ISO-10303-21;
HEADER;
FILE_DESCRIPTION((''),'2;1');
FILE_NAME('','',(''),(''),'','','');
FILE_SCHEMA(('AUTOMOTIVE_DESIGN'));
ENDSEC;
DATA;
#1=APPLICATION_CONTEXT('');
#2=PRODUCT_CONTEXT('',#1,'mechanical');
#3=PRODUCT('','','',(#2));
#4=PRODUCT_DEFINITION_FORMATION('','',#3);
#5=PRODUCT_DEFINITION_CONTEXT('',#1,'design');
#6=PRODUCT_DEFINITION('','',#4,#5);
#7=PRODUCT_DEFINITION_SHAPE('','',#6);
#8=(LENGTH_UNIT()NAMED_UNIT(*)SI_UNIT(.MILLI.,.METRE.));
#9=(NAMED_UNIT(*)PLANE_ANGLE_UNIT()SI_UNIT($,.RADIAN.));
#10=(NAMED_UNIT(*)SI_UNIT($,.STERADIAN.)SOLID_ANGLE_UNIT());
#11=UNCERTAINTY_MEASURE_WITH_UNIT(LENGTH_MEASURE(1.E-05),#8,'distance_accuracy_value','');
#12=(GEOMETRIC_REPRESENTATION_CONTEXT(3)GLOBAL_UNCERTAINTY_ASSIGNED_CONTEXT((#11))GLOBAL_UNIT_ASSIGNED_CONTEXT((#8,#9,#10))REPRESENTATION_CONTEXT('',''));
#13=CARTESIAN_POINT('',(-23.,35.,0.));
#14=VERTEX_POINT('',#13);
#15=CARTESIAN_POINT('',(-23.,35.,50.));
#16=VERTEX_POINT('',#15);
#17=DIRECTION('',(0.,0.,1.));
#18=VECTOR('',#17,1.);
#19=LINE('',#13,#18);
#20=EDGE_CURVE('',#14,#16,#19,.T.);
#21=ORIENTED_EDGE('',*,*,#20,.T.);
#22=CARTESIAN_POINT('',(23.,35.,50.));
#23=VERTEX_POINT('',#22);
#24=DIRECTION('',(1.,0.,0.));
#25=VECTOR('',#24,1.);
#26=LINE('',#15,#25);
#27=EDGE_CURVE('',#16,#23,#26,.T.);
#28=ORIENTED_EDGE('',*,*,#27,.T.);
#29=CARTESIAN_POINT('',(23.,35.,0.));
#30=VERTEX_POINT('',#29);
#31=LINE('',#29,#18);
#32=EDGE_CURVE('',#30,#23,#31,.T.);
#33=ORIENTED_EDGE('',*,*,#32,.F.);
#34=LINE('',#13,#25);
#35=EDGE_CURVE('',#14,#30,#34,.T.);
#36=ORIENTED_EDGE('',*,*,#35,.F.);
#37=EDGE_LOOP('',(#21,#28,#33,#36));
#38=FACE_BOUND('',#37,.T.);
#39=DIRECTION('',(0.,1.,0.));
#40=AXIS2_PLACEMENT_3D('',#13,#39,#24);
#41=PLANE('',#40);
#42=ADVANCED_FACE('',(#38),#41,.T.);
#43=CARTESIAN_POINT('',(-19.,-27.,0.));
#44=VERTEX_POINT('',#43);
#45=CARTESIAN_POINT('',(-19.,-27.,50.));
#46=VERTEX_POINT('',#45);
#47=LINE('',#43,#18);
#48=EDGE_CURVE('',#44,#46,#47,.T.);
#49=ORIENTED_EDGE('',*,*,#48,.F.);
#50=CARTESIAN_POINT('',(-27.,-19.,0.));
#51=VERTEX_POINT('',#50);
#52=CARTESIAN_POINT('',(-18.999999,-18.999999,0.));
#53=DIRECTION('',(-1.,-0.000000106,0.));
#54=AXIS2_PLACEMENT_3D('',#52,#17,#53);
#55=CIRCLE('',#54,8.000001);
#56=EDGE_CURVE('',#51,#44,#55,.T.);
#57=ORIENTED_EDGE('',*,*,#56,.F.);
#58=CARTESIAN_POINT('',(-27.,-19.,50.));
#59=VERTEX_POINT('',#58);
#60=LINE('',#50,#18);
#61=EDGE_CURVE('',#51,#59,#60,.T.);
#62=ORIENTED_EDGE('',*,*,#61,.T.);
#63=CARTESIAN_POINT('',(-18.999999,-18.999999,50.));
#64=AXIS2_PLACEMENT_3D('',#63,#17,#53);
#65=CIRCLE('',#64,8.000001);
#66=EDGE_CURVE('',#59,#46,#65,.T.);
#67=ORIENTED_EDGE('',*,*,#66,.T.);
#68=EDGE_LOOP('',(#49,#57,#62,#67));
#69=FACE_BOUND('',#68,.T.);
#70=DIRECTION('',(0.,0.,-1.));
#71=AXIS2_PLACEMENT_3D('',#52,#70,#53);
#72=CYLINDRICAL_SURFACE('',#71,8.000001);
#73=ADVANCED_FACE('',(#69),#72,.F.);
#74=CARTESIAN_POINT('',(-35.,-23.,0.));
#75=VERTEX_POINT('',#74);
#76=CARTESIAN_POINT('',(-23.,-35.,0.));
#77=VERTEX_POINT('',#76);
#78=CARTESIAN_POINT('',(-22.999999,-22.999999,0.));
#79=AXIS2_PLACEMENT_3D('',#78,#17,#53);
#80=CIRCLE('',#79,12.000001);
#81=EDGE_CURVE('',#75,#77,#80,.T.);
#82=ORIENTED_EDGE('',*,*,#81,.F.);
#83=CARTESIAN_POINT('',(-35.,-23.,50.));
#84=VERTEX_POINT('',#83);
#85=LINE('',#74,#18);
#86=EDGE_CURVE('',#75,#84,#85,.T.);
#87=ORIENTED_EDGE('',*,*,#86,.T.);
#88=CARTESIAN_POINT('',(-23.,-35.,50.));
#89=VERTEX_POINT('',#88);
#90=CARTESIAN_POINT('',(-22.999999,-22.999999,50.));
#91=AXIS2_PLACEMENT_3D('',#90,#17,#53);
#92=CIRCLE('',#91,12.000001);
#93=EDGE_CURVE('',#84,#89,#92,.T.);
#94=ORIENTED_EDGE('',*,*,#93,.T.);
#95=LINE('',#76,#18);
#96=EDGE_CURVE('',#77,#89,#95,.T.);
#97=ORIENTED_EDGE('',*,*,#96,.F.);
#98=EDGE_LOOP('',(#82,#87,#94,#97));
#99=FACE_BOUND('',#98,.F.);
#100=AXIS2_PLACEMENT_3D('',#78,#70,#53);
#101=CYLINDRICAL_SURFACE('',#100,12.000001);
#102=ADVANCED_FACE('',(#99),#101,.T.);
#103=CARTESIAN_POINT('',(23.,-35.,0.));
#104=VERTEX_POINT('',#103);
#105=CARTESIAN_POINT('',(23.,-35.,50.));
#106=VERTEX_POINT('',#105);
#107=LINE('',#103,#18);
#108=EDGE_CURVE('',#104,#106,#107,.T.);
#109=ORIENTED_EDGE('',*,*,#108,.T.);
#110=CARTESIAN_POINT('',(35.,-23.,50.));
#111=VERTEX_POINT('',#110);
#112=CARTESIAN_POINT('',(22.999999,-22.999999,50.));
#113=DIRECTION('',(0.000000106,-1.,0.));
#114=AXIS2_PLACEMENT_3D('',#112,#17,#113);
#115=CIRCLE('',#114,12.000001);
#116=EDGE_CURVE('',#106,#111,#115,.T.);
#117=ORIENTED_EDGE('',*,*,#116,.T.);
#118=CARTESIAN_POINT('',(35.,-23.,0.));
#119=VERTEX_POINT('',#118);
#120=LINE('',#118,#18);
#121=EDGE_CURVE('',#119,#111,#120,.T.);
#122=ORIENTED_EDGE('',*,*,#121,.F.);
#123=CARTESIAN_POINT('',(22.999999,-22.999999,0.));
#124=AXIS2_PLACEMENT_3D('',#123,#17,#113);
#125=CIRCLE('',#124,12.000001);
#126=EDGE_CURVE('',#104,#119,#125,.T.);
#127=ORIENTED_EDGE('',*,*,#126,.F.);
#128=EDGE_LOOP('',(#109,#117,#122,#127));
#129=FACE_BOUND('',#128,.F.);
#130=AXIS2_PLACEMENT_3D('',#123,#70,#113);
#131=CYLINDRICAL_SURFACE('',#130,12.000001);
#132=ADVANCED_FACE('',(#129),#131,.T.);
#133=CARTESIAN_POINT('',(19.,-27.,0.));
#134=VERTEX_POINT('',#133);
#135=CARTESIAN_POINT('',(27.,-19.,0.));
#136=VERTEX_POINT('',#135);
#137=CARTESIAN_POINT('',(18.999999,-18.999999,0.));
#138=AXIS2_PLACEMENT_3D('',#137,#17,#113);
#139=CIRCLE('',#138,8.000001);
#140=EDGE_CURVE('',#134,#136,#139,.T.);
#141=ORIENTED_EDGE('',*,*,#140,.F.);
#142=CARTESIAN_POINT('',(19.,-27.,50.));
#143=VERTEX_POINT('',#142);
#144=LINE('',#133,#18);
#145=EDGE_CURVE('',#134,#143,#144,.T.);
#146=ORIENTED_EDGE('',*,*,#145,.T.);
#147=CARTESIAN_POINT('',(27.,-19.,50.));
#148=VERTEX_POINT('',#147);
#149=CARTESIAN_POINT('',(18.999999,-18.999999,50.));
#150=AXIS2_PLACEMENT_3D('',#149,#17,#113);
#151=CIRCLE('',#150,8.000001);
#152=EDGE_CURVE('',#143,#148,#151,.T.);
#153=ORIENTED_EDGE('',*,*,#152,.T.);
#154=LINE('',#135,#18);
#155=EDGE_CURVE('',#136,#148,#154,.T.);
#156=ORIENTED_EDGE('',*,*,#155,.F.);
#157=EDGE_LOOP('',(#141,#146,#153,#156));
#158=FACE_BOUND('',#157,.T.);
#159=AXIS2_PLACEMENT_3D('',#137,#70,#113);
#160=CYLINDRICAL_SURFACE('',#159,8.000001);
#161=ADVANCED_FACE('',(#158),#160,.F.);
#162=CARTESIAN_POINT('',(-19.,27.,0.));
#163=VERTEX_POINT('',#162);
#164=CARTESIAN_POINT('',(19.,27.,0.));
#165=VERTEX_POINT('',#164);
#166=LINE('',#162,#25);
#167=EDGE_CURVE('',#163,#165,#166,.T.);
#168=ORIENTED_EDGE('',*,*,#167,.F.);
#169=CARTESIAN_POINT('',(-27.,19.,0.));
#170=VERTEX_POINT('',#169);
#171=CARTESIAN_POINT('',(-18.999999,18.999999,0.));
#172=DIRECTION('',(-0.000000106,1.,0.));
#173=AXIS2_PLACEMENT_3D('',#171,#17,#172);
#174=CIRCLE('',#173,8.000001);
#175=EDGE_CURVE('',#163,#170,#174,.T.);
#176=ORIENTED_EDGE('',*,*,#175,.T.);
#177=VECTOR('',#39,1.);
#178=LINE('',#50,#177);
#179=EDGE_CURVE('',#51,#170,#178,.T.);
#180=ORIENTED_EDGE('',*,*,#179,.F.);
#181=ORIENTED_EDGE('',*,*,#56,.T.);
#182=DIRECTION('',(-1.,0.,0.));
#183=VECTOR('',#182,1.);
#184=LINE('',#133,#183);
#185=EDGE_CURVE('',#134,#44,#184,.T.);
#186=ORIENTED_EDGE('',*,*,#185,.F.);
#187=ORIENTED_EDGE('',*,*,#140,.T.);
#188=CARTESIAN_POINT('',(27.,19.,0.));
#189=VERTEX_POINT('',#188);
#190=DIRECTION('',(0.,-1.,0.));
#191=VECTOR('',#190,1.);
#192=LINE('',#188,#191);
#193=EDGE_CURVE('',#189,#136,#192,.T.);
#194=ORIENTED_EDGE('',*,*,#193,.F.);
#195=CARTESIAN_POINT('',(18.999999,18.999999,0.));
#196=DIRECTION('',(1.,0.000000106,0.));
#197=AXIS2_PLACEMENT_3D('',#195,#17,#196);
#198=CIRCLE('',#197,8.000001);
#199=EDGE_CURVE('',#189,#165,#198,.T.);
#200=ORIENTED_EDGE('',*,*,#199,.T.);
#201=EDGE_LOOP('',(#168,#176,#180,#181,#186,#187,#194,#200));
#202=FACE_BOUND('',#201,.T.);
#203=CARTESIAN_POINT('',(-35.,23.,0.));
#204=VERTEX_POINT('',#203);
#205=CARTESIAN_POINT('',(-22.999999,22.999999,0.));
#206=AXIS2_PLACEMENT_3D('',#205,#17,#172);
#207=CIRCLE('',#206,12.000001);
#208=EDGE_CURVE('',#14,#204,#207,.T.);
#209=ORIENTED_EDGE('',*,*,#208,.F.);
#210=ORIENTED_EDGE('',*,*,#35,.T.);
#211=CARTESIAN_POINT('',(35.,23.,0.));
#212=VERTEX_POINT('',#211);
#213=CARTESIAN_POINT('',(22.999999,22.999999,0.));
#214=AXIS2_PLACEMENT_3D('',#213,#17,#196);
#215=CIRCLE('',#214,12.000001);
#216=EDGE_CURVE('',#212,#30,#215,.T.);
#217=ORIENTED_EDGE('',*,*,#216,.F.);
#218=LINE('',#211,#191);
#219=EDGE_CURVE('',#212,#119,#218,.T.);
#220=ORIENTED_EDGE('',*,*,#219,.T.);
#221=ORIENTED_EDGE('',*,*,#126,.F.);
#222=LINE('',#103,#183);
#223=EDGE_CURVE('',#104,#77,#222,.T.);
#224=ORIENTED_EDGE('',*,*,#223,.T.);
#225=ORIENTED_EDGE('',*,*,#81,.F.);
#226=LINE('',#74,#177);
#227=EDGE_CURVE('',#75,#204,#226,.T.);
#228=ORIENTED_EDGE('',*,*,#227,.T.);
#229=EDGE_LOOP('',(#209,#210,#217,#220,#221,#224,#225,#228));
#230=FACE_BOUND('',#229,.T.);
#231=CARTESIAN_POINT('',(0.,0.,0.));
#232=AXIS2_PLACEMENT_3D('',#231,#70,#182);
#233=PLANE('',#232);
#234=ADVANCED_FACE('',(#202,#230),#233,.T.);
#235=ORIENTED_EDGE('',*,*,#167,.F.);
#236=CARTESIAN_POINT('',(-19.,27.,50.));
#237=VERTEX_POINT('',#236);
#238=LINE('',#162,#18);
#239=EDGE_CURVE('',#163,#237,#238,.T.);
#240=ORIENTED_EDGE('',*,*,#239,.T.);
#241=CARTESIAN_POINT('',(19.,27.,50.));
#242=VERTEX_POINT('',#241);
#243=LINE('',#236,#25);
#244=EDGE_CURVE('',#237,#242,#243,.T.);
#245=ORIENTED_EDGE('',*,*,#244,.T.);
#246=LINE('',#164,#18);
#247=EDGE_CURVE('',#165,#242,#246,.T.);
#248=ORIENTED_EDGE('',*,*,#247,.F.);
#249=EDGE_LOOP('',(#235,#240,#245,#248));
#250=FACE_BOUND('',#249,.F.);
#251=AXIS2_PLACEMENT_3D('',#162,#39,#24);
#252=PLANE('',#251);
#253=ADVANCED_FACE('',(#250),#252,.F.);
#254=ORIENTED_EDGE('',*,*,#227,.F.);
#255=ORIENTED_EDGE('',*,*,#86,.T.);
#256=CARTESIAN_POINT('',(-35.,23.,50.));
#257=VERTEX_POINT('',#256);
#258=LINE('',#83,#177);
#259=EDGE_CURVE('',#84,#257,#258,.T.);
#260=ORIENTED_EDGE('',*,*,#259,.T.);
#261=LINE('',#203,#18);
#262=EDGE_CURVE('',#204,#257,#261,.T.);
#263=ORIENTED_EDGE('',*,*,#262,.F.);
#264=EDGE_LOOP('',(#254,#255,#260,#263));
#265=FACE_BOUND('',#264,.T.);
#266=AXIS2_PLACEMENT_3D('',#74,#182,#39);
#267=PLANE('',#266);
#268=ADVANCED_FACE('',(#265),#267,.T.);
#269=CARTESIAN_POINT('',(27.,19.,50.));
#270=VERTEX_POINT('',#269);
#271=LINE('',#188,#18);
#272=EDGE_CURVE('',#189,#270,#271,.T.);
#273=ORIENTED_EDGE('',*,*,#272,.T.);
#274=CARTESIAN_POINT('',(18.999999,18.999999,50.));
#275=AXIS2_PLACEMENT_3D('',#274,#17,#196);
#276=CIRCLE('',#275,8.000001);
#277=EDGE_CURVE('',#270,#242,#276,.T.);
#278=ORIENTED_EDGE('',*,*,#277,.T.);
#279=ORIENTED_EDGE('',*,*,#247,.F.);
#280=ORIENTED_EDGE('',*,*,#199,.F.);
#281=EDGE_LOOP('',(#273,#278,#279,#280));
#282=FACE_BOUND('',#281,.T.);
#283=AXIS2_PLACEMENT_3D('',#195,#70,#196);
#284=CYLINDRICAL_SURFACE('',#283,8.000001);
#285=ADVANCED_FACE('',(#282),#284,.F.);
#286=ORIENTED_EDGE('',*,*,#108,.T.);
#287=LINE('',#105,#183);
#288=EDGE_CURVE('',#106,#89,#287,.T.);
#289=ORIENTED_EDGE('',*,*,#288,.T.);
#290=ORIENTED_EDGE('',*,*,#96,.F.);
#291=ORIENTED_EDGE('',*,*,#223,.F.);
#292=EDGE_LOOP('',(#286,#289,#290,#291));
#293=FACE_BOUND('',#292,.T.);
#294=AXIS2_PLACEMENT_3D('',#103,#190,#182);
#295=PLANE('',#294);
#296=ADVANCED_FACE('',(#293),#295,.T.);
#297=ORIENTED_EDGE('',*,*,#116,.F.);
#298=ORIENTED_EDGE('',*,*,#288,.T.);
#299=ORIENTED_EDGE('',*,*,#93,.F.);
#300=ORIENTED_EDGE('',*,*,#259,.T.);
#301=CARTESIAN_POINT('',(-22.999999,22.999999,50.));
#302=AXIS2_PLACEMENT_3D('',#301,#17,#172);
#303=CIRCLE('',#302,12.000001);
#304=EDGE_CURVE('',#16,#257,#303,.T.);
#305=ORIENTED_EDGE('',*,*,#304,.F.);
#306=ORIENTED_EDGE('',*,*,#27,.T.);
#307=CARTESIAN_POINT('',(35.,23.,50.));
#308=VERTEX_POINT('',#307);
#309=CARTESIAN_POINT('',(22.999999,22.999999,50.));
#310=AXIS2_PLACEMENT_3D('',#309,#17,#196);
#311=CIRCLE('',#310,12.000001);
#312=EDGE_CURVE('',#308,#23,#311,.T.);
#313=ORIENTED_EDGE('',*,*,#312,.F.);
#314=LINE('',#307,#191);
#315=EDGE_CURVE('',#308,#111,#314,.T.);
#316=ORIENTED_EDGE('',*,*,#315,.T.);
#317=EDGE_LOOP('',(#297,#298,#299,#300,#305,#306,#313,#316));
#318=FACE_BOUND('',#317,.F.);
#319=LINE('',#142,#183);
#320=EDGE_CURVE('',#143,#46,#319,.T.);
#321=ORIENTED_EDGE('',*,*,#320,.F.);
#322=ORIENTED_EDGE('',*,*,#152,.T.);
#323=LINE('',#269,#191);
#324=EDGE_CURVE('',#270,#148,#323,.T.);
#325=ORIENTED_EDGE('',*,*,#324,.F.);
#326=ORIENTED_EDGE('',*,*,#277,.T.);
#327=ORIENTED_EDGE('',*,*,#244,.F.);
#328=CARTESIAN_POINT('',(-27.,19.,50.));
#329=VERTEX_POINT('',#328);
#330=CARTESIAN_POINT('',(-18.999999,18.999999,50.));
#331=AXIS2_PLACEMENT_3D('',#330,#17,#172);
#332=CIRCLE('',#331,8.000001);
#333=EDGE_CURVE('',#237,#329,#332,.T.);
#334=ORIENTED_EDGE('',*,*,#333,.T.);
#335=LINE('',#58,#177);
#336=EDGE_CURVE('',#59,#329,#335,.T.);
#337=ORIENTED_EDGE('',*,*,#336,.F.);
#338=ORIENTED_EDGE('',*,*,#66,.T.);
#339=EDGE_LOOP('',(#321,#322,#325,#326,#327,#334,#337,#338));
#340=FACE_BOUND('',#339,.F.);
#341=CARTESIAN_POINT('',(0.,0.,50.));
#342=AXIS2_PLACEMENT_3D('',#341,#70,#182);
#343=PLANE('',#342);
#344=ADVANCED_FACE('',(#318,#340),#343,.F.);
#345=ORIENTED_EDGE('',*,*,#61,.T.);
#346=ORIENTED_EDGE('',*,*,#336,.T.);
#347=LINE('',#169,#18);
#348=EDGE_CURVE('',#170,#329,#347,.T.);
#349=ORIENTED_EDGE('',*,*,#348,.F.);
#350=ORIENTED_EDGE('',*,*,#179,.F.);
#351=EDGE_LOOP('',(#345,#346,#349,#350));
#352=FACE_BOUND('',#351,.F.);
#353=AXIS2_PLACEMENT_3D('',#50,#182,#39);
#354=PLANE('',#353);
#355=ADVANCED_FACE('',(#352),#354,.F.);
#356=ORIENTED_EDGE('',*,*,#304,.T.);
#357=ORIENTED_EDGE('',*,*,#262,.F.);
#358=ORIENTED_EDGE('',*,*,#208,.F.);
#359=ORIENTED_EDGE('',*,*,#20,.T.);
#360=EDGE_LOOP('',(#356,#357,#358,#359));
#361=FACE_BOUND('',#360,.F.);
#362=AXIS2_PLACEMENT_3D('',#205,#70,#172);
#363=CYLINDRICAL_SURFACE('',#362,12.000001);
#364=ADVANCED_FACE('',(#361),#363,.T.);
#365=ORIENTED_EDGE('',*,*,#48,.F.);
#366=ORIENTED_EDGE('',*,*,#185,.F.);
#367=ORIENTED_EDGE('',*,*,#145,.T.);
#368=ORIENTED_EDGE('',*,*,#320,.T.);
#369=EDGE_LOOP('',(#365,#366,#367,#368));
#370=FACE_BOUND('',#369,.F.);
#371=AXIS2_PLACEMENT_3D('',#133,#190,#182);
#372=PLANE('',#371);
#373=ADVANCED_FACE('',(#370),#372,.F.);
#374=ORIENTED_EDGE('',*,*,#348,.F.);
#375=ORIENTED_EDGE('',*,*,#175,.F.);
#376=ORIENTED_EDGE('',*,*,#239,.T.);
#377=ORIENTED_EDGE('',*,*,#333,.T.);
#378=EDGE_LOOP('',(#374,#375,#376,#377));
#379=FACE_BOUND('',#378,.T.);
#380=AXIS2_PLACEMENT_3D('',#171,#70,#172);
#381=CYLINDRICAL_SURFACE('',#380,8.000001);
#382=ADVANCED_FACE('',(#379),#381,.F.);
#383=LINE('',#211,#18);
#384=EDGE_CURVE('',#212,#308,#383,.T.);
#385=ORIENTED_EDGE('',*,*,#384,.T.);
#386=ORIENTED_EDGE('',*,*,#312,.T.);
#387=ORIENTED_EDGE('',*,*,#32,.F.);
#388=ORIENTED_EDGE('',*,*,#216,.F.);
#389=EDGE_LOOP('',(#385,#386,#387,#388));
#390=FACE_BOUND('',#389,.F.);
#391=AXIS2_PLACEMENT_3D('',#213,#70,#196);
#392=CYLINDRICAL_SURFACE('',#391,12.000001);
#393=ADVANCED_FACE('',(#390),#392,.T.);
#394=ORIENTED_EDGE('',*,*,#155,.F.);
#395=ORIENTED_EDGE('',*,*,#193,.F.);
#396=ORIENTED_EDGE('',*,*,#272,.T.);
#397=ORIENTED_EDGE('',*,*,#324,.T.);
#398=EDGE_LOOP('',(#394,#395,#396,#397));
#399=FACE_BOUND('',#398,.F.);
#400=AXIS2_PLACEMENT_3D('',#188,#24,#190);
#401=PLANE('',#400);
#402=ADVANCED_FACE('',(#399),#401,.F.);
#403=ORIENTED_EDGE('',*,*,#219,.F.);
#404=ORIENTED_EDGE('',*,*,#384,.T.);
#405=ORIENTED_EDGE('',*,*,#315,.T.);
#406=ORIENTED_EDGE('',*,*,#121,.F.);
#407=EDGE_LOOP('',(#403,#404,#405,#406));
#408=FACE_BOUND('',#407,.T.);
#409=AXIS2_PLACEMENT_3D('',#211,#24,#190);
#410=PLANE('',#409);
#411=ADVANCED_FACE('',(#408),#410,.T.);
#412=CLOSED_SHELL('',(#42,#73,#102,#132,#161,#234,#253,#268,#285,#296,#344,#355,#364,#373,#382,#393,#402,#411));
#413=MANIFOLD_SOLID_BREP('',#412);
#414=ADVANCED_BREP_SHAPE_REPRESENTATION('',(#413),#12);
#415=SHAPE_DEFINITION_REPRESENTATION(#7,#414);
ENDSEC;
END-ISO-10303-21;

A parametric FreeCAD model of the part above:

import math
import FreeCAD as App
import Part
import Sketcher
from FreeCAD import Vector

doc = App.newDocument("Part")
params = doc.addObject("Spreadsheet::Sheet", "Params")
for row, (alias, value) in enumerate([
    ("sketch1_radius", "12.000001 mm"),
    ("sketch1_radius2", "8.000001 mm"),
    ("sketch1_width", "46 mm"),
    ("sketch1_width2", "38 mm"),
    ("pad1_length", "50 mm"),
], start=1):
    params.set(f"A{row}", alias)
    params.set(f"B{row}", "=" + value)
    params.setAlias(f"B{row}", alias)

body = doc.addObject("PartDesign::Body", "Body")

# Sketch on XY plane
sketch1 = body.newObject("Sketcher::SketchObject", "Sketch")
sketch1.AttachmentSupport = (doc.getObject("XY_Plane"), [""])
sketch1.MapMode = "FlatFace"
sketch1.addGeometry([
    Part.LineSegment(Vector(23, 35, 0), Vector(-23, 35, 0)),  # 0
    Part.ArcOfCircle(Part.Circle(Vector(-23, 23, 0), Vector(0, 0, 1), 12), math.radians(90), math.radians(180)),  # 1
    Part.LineSegment(Vector(-35, 23, 0), Vector(-35, -23, 0)),  # 2
    Part.ArcOfCircle(Part.Circle(Vector(-23, -23, 0), Vector(0, 0, 1), 12), math.radians(-180), math.radians(-90)),  # 3
    Part.LineSegment(Vector(-23, -35, 0), Vector(23, -35, 0)),  # 4
    Part.ArcOfCircle(Part.Circle(Vector(23, -23, 0), Vector(0, 0, 1), 12), math.radians(-90), math.radians(0)),  # 5
    Part.LineSegment(Vector(35, -23, 0), Vector(35, 23, 0)),  # 6
    Part.ArcOfCircle(Part.Circle(Vector(23, 23, 0), Vector(0, 0, 1), 12), math.radians(0), math.radians(90)),  # 7
    Part.LineSegment(Vector(-19, 27, 0), Vector(19, 27, 0)),  # 8
    Part.ArcOfCircle(Part.Circle(Vector(19, 19, 0), Vector(0, 0, 1), 8), math.radians(0), math.radians(90)),  # 9
    Part.LineSegment(Vector(27, 19, 0), Vector(27, -19, 0)),  # 10
    Part.ArcOfCircle(Part.Circle(Vector(19, -19, 0), Vector(0, 0, 1), 8), math.radians(-90), math.radians(0)),  # 11
    Part.LineSegment(Vector(19, -27, 0), Vector(-19, -27, 0)),  # 12
    Part.ArcOfCircle(Part.Circle(Vector(-19, -19, 0), Vector(0, 0, 1), 8), math.radians(-180), math.radians(-90)),  # 13
    Part.LineSegment(Vector(-27, -19, 0), Vector(-27, 19, 0)),  # 14
    Part.ArcOfCircle(Part.Circle(Vector(-19, 19, 0), Vector(0, 0, 1), 8), math.radians(90), math.radians(180)),  # 15
], False)
sketch1.addConstraint([
    Sketcher.Constraint("Tangent", 0, 2, 1, 1),
    Sketcher.Constraint("Tangent", 1, 2, 2, 1),
    Sketcher.Constraint("Tangent", 2, 2, 3, 1),
    Sketcher.Constraint("Tangent", 3, 2, 4, 1),
    Sketcher.Constraint("Tangent", 4, 2, 5, 1),
    Sketcher.Constraint("Tangent", 5, 2, 6, 1),
    Sketcher.Constraint("Tangent", 6, 2, 7, 1),
    Sketcher.Constraint("Tangent", 7, 2, 0, 1),
    Sketcher.Constraint("Tangent", 8, 2, 9, 2),
    Sketcher.Constraint("Tangent", 9, 1, 10, 1),
    Sketcher.Constraint("Tangent", 10, 2, 11, 2),
    Sketcher.Constraint("Tangent", 11, 1, 12, 1),
    Sketcher.Constraint("Tangent", 12, 2, 13, 2),
    Sketcher.Constraint("Tangent", 13, 1, 14, 1),
    Sketcher.Constraint("Tangent", 14, 2, 15, 2),
    Sketcher.Constraint("Tangent", 15, 1, 8, 1),
    Sketcher.Constraint("Horizontal", 0),
    Sketcher.Constraint("Vertical", 2),
    Sketcher.Constraint("Horizontal", 4),
    Sketcher.Constraint("Vertical", 6),
    Sketcher.Constraint("Horizontal", 8),
    Sketcher.Constraint("Vertical", 10),
    Sketcher.Constraint("Horizontal", 12),
    Sketcher.Constraint("Vertical", 14),
    Sketcher.Constraint("Equal", 1, 3),
    Sketcher.Constraint("Equal", 3, 5),
    Sketcher.Constraint("Equal", 5, 7),
    Sketcher.Constraint("Equal", 9, 11),
    Sketcher.Constraint("Equal", 11, 13),
    Sketcher.Constraint("Equal", 13, 15),
    Sketcher.Constraint("Symmetric", 1, 3, 5, 3, -1, 1),
    Sketcher.Constraint("Symmetric", 9, 3, 13, 3, -1, 1),
    Sketcher.Constraint("Equal", 4, 2),
    Sketcher.Constraint("Equal", 12, 10),
    Sketcher.Constraint("Radius", 1, 12.000001),
    Sketcher.Constraint("Radius", 9, 8.000001),
    Sketcher.Constraint("DistanceX", 0, 2, 0, 1, 46.0),
    Sketcher.Constraint("DistanceX", 8, 1, 8, 2, 38.0),
])
sketch1.setExpression("Constraints[34]", "Params.sketch1_radius")
sketch1.setExpression("Constraints[35]", "Params.sketch1_radius2")
sketch1.setExpression("Constraints[36]", "Params.sketch1_width")
sketch1.setExpression("Constraints[37]", "Params.sketch1_width2")
pad1 = body.newObject("PartDesign::Pad", "Pad")
pad1.Profile = sketch1
pad1.setExpression("Length", "Params.pad1_length")

doc.recompute()
